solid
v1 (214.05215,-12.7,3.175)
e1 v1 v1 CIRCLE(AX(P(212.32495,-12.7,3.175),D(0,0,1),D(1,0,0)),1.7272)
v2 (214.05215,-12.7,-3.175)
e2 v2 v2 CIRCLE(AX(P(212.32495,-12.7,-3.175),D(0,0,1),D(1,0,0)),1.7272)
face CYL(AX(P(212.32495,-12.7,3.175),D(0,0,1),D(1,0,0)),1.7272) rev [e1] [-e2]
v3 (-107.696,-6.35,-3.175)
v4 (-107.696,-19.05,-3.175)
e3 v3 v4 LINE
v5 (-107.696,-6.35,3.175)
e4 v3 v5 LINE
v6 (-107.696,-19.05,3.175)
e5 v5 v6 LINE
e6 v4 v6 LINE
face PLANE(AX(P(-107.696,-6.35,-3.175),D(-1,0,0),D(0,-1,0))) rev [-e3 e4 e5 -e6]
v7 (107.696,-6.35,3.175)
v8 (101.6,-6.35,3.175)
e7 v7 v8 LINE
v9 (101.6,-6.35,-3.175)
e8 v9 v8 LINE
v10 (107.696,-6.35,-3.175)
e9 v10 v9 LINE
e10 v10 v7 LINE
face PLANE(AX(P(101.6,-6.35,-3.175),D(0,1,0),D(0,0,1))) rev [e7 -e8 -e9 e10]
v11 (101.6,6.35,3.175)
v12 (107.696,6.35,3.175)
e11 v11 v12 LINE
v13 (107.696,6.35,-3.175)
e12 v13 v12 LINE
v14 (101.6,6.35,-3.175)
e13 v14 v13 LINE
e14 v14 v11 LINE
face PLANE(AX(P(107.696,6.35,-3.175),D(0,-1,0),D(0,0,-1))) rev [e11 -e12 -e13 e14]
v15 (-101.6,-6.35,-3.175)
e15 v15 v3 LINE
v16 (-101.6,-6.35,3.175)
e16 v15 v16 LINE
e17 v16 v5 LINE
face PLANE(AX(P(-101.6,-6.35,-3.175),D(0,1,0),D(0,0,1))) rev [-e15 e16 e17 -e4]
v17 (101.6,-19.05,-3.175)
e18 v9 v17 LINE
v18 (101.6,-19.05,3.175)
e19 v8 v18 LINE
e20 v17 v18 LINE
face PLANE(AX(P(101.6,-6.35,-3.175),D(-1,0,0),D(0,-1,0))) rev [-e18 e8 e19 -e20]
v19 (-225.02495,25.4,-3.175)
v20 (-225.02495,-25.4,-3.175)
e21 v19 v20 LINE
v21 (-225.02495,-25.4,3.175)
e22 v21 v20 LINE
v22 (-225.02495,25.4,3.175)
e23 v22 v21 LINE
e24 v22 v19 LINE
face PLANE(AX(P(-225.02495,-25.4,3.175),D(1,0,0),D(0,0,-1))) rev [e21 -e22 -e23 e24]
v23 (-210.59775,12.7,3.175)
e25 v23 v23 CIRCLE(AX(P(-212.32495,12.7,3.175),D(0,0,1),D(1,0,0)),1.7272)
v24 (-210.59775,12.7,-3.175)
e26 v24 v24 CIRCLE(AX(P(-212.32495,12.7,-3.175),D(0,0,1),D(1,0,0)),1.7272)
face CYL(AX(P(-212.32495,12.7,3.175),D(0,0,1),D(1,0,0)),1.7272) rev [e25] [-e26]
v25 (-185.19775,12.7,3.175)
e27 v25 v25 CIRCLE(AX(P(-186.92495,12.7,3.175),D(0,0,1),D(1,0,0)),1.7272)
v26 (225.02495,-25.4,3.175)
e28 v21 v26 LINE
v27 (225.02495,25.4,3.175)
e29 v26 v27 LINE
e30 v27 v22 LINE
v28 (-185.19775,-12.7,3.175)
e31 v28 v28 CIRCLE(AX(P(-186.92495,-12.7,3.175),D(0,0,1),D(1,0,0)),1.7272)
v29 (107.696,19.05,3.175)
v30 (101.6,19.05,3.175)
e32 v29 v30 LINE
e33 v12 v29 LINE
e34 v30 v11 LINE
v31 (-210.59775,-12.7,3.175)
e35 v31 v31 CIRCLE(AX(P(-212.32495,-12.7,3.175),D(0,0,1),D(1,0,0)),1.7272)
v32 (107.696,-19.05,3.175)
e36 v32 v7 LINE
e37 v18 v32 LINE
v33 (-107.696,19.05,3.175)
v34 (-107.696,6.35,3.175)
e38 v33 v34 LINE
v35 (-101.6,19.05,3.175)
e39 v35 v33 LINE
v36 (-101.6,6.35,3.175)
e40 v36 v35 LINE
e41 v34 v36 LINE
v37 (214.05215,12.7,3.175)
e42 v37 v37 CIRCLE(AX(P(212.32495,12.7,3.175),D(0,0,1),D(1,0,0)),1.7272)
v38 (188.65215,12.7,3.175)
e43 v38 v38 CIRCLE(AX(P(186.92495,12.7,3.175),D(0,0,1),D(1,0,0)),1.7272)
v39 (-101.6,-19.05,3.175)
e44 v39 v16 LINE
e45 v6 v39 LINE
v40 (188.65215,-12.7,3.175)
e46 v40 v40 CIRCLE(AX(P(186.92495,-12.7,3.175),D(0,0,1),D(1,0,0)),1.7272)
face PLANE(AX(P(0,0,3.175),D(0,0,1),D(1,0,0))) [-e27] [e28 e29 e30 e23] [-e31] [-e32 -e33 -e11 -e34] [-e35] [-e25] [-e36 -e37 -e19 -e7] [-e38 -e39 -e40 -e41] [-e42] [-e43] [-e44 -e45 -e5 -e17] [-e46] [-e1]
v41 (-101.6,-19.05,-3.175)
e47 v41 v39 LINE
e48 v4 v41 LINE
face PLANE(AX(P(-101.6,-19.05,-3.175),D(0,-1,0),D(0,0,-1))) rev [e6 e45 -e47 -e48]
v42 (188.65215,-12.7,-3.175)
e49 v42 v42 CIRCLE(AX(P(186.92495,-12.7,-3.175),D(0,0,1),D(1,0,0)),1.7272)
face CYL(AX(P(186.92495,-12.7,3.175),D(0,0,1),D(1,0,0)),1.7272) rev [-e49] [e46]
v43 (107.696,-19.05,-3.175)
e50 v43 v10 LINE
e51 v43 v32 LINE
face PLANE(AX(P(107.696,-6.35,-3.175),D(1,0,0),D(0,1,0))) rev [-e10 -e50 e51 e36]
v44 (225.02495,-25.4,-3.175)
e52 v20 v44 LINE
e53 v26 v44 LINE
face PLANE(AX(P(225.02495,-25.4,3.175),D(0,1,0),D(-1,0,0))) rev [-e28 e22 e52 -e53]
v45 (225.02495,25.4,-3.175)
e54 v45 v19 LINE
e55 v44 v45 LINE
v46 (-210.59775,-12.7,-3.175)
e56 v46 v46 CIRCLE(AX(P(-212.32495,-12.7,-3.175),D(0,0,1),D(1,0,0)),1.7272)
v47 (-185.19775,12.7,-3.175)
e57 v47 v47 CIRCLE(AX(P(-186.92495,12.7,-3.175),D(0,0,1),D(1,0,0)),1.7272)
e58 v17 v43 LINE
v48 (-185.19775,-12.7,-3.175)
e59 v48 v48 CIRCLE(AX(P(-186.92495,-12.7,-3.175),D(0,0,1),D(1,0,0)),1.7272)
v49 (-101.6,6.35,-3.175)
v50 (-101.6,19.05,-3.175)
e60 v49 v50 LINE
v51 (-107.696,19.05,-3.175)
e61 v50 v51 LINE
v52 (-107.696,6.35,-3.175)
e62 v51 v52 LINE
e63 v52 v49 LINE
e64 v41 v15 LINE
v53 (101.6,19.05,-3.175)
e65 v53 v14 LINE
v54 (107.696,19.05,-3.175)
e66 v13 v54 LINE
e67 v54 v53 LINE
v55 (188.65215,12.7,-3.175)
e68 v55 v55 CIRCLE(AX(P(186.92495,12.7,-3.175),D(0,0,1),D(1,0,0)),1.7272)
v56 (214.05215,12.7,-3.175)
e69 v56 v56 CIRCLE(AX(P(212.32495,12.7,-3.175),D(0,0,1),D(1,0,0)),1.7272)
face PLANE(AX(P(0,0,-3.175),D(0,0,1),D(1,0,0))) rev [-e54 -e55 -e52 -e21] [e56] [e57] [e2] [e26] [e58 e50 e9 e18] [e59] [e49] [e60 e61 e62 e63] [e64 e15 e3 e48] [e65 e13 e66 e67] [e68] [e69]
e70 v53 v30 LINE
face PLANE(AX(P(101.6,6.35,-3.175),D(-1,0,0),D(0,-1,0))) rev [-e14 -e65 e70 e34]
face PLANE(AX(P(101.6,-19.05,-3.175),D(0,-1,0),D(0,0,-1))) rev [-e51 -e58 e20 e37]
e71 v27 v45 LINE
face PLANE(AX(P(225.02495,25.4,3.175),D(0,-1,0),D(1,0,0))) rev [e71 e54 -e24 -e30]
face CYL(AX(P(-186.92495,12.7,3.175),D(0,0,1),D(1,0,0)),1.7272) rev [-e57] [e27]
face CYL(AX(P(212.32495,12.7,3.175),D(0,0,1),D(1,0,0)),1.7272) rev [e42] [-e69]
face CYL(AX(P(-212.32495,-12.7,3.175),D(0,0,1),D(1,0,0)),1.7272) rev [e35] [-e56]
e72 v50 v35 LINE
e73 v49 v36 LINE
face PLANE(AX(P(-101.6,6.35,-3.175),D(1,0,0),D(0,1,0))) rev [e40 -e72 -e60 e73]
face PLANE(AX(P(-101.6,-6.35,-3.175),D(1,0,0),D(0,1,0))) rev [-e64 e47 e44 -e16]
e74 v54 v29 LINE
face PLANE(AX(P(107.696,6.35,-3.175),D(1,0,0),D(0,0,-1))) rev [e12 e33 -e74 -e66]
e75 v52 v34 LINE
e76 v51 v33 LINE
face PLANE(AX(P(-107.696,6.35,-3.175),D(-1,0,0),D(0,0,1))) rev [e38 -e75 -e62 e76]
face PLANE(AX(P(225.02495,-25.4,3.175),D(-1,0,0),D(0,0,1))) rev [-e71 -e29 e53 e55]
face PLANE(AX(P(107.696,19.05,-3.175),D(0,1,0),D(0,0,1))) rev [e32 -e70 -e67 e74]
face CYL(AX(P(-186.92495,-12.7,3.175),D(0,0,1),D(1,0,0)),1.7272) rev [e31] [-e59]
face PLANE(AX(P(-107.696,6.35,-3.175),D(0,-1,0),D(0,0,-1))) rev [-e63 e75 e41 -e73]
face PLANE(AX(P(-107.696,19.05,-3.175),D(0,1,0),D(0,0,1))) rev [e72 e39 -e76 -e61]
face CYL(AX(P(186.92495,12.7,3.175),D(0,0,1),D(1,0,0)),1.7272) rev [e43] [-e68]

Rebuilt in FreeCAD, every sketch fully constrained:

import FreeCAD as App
import Part
import Sketcher
Q = App.Units.Quantity

doc = App.newDocument("Part")
body = doc.addObject("PartDesign::Body", "Body")

# Sketch on XY plane
sketch1 = body.newObject("Sketcher::SketchObject", "Sketch")
sketch1.AttachmentSupport = (doc.getObject("XY_Plane"), [""])
sketch1.MapMode = "FlatFace"
sketch1.addGeometry([
    Part.LineSegment(App.Vector(-225, 25, 0), App.Vector(-225, -25, 0)),
    Part.LineSegment(App.Vector(-225, -25, 0), App.Vector(225, -25, 0)),
    Part.LineSegment(App.Vector(225, -25, 0), App.Vector(225, 25, 0)),
    Part.LineSegment(App.Vector(225, 25, 0), App.Vector(-225, 25, 0)),
], False)
sketch1.addConstraint([
    Sketcher.Constraint("Coincident", 0, 2, 1, 1),
    Sketcher.Constraint("Coincident", 1, 2, 2, 1),
    Sketcher.Constraint("Coincident", 2, 2, 3, 1),
    Sketcher.Constraint("Coincident", 3, 2, 0, 1),
    Sketcher.Constraint("Vertical", 0),
    Sketcher.Constraint("Horizontal", 1),
    Sketcher.Constraint("Vertical", 2),
    Sketcher.Constraint("Horizontal", 3),
    Sketcher.Constraint("Symmetric", 0, 2, 2, 2, -1, 1),
    Sketcher.Constraint("DistanceY", 0, 2, 0, 1, Q("2 in")),
    Sketcher.Constraint("DistanceX", 1, 1, 1, 2, Q("17.7185 in")),
])
pad1 = body.newObject("PartDesign::Pad", "Pad")
pad1.Profile = sketch1
pad1.Length = Q("0.25 in")
pad1.Midplane = True

# Sketch on XY plane
sketch2 = body.newObject("Sketcher::SketchObject", "Sketch001")
sketch2.AttachmentSupport = (doc.getObject("XY_Plane"), [""])
sketch2.MapMode = "FlatFace"
sketch2.AttachmentOffset = App.Placement(App.Vector(0, 0, 0.125 * 25.4), App.Rotation())
sketch2.addGeometry([
    Part.Circle(App.Vector(-212.3, 12.7, 0), App.Vector(0, 0, 1), 1.7),  # 0
    Part.Circle(App.Vector(-212.3, -12.7, 0), App.Vector(0, 0, 1), 1.7),  # 1
    Part.Circle(App.Vector(212.3, 12.7, 0), App.Vector(0, 0, 1), 1.7),  # 2
    Part.Circle(App.Vector(212.3, -12.7, 0), App.Vector(0, 0, 1), 1.7),  # 3
    Part.Circle(App.Vector(-186.9, 12.7, 0), App.Vector(0, 0, 1), 1.7),  # 4
    Part.Circle(App.Vector(-186.9, -12.7, 0), App.Vector(0, 0, 1), 1.7),  # 5
    Part.Circle(App.Vector(186.9, 12.7, 0), App.Vector(0, 0, 1), 1.7),  # 6
    Part.Circle(App.Vector(186.9, -12.7, 0), App.Vector(0, 0, 1), 1.7),  # 7
], False)
sketch2.addConstraint([
    Sketcher.Constraint("Equal", 0, 1),
    Sketcher.Constraint("Equal", 1, 2),
    Sketcher.Constraint("Equal", 2, 3),
    Sketcher.Constraint("Equal", 3, 4),
    Sketcher.Constraint("Equal", 4, 5),
    Sketcher.Constraint("Equal", 5, 6),
    Sketcher.Constraint("Equal", 6, 7),
    Sketcher.Constraint("Symmetric", 1, 3, 2, 3, -1, 1),
    Sketcher.Constraint("Symmetric", 0, 3, 3, 3, -1, 1),
    Sketcher.Constraint("Symmetric", 5, 3, 6, 3, -1, 1),
    Sketcher.Constraint("Symmetric", 4, 3, 7, 3, -1, 1),
    Sketcher.Constraint("Symmetric", 0, 3, 2, 3, -2),
    Sketcher.Constraint("Symmetric", 4, 3, 6, 3, -2),
    Sketcher.Constraint("Horizontal", 2, 3, 4, 3),
    Sketcher.Constraint("Diameter", 0, Q("0.136 in")),
    Sketcher.Constraint("DistanceY", 1, 3, 0, 3, Q("1 in")),
    Sketcher.Constraint("DistanceX", 0, 3, 4, 3, Q("1 in")),
    Sketcher.Constraint("DistanceX", 0, 3, 2, 3, Q("16.7185 in")),
])
doc.recompute()
hole = body.newObject("PartDesign::Hole", "Hole")
hole.Profile = sketch2
hole.ThreadType = "None"
hole.Diameter = Q("0.136 in")
hole.DepthType = "ThroughAll"

# Sketch on XY plane
sketch3 = body.newObject("Sketcher::SketchObject", "Sketch002")
sketch3.AttachmentSupport = (doc.getObject("XY_Plane"), [""])
sketch3.MapMode = "FlatFace"
sketch3.AttachmentOffset = App.Placement(App.Vector(0, 0, 0.125 * 25.4), App.Rotation())
sketch3.addGeometry([
    Part.LineSegment(App.Vector(-108, 19, 0), App.Vector(-108, 6, 0)),  # 0
    Part.LineSegment(App.Vector(-108, 6, 0), App.Vector(-102, 6, 0)),  # 1
    Part.LineSegment(App.Vector(-102, 6, 0), App.Vector(-102, 19, 0)),  # 2
    Part.LineSegment(App.Vector(-102, 19, 0), App.Vector(-108, 19, 0)),  # 3
    Part.LineSegment(App.Vector(-108, -6, 0), App.Vector(-108, -19, 0)),  # 4
    Part.LineSegment(App.Vector(-108, -19, 0), App.Vector(-102, -19, 0)),  # 5
    Part.LineSegment(App.Vector(-102, -19, 0), App.Vector(-102, -6, 0)),  # 6
    Part.LineSegment(App.Vector(-102, -6, 0), App.Vector(-108, -6, 0)),  # 7
    Part.LineSegment(App.Vector(102, 19, 0), App.Vector(102, 6, 0)),  # 8
    Part.LineSegment(App.Vector(102, 6, 0), App.Vector(108, 6, 0)),  # 9
    Part.LineSegment(App.Vector(108, 6, 0), App.Vector(108, 19, 0)),  # 10
    Part.LineSegment(App.Vector(108, 19, 0), App.Vector(102, 19, 0)),  # 11
    Part.LineSegment(App.Vector(102, -6, 0), App.Vector(102, -19, 0)),  # 12
    Part.LineSegment(App.Vector(102, -19, 0), App.Vector(108, -19, 0)),  # 13
    Part.LineSegment(App.Vector(108, -19, 0), App.Vector(108, -6, 0)),  # 14
    Part.LineSegment(App.Vector(108, -6, 0), App.Vector(102, -6, 0)),  # 15
], False)
sketch3.addConstraint([
    Sketcher.Constraint("Coincident", 0, 2, 1, 1),
    Sketcher.Constraint("Coincident", 1, 2, 2, 1),
    Sketcher.Constraint("Coincident", 2, 2, 3, 1),
    Sketcher.Constraint("Coincident", 3, 2, 0, 1),
    Sketcher.Constraint("Coincident", 4, 2, 5, 1),
    Sketcher.Constraint("Coincident", 5, 2, 6, 1),
    Sketcher.Constraint("Coincident", 6, 2, 7, 1),
    Sketcher.Constraint("Coincident", 7, 2, 4, 1),
    Sketcher.Constraint("Coincident", 8, 2, 9, 1),
    Sketcher.Constraint("Coincident", 9, 2, 10, 1),
    Sketcher.Constraint("Coincident", 10, 2, 11, 1),
    Sketcher.Constraint("Coincident", 11, 2, 8, 1),
    Sketcher.Constraint("Coincident", 12, 2, 13, 1),
    Sketcher.Constraint("Coincident", 13, 2, 14, 1),
    Sketcher.Constraint("Coincident", 14, 2, 15, 1),
    Sketcher.Constraint("Coincident", 15, 2, 12, 1),
    Sketcher.Constraint("Vertical", 0),
    Sketcher.Constraint("Horizontal", 1),
    Sketcher.Constraint("Vertical", 2),
    Sketcher.Constraint("Horizontal", 3),
    Sketcher.Constraint("Vertical", 4),
    Sketcher.Constraint("Horizontal", 5),
    Sketcher.Constraint("Vertical", 6),
    Sketcher.Constraint("Horizontal", 7),
    Sketcher.Constraint("Vertical", 8),
    Sketcher.Constraint("Horizontal", 9),
    Sketcher.Constraint("Vertical", 10),
    Sketcher.Constraint("Horizontal", 11),
    Sketcher.Constraint("Vertical", 12),
    Sketcher.Constraint("Horizontal", 13),
    Sketcher.Constraint("Vertical", 14),
    Sketcher.Constraint("Horizontal", 15),
    Sketcher.Constraint("Symmetric", 6, 2, 8, 2, -1, 1),
    Sketcher.Constraint("Symmetric", 4, 2, 10, 2, -1, 1),
    Sketcher.Constraint("Symmetric", 2, 2, 12, 2, -1, 1),
    Sketcher.Constraint("Symmetric", 0, 2, 14, 2, -1, 1),
    Sketcher.Constraint("Symmetric", 1, 2, 8, 2, -2),
    Sketcher.Constraint("Symmetric", 3, 2, 10, 2, -2),
    Sketcher.Constraint("DistanceY", 0, 2, 0, 1, Q("0.5 in")),
    Sketcher.Constraint("DistanceX", 1, 2, -1, 1, Q("4 in")),
    Sketcher.Constraint("DistanceY", 4, 2, 0, 2, Q("1 in")),
    Sketcher.Constraint("DistanceX", 1, 1, 1, 2, Q("0.24 in")),
])
pocket1 = body.newObject("PartDesign::Pocket", "Pocket")
pocket1.Profile = sketch3
pocket1.Type = "ThroughAll"

doc.recompute()
